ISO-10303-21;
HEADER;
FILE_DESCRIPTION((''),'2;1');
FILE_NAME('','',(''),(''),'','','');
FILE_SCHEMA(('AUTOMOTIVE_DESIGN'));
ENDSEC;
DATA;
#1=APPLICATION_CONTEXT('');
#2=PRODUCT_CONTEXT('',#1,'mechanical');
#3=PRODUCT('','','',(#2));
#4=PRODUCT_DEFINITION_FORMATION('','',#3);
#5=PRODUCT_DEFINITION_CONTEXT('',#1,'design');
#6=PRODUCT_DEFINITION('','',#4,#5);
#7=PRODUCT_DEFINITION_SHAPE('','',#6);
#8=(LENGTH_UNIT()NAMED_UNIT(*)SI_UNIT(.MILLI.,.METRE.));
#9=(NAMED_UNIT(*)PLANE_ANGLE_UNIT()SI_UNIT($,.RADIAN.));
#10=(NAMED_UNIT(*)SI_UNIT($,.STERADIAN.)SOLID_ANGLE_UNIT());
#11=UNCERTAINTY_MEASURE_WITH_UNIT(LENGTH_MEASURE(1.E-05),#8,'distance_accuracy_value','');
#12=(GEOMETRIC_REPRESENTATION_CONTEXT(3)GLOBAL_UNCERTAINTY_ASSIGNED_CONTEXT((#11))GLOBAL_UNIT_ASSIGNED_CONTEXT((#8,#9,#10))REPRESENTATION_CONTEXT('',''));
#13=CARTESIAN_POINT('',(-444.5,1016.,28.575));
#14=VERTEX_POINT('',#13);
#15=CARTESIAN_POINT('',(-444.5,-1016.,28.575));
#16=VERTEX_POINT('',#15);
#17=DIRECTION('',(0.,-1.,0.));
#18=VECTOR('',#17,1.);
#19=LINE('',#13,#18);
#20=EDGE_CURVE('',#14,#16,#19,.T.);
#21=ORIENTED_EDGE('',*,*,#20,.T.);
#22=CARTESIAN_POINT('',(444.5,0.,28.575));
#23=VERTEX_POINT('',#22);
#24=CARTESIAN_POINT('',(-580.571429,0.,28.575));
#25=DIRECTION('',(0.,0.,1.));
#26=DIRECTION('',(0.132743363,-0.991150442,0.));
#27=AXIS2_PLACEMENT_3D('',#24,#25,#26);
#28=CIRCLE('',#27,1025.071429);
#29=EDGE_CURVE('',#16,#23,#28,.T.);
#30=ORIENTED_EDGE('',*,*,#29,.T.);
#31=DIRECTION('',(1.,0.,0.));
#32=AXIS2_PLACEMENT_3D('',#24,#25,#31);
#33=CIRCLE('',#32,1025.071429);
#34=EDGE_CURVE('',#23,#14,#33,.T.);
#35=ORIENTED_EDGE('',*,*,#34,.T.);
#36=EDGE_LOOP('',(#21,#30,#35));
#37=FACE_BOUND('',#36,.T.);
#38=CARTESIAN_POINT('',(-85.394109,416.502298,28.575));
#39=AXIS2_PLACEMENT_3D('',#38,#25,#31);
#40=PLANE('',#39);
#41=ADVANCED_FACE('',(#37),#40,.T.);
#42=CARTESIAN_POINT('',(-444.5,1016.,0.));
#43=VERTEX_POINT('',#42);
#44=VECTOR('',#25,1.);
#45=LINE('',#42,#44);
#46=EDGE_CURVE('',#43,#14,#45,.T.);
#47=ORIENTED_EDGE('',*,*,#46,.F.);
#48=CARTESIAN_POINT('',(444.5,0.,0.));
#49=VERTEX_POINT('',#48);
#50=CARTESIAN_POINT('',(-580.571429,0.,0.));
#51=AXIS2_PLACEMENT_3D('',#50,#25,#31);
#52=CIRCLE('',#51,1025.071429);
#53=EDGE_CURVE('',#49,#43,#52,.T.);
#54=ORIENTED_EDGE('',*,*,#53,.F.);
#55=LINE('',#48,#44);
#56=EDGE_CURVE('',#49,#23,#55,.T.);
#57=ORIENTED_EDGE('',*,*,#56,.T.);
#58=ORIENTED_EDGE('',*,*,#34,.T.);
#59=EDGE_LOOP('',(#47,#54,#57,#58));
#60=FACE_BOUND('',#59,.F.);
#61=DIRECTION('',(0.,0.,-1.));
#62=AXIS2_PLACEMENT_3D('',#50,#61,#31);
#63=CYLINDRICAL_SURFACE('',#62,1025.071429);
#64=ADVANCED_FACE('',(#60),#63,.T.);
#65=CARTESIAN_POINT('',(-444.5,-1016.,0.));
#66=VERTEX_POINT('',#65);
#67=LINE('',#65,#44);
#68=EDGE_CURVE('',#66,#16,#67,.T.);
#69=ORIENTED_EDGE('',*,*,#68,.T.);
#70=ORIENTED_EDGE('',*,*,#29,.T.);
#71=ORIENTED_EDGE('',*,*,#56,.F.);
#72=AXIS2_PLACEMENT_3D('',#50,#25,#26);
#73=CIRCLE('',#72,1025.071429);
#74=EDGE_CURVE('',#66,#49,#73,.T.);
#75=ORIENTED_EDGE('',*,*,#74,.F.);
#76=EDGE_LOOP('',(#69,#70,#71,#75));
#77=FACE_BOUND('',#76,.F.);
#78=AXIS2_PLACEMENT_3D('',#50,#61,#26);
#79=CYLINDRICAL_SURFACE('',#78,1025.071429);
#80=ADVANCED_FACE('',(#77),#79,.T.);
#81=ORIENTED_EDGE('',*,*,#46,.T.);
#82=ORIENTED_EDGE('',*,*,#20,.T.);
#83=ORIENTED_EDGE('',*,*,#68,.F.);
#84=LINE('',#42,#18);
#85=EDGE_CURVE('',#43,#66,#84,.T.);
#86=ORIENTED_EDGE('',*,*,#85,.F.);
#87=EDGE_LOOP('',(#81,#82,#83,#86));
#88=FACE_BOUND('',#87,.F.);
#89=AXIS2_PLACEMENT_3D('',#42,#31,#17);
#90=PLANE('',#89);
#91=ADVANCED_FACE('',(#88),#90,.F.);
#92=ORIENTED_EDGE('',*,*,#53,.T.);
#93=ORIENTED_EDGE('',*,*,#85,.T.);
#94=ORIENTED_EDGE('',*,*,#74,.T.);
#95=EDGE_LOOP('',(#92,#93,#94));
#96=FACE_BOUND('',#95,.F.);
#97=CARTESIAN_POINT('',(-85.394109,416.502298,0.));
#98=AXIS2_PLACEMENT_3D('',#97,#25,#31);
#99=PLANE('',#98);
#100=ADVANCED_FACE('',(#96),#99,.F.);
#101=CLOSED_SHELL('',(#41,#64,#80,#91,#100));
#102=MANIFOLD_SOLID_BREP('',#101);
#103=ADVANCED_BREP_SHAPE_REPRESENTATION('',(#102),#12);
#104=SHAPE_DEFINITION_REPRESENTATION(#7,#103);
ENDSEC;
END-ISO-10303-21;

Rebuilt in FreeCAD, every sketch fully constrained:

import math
import FreeCAD as App
import Part
import Sketcher
from FreeCAD import Vector
Q = App.Units.Quantity

doc = App.newDocument("Part")
body = doc.addObject("PartDesign::Body", "Body")

# Sketch on XY plane
sketch1 = body.newObject("Sketcher::SketchObject", "Sketch")
sketch1.AttachmentSupport = (doc.getObject("XY_Plane"), [""])
sketch1.MapMode = "FlatFace"
sketch1.addGeometry([
    Part.ArcOfCircle(Part.Circle(Vector(-580.571429, 0, 0), Vector(0, 0, 1), 1025.071429), math.radians(0), math.radians(82.37185)),
    Part.LineSegment(Vector(-444.5, 1016, 0), Vector(-444.5, -1016, 0)),
    Part.ArcOfCircle(Part.Circle(Vector(-580.571429, 0, 0), Vector(0, 0, 1), 1025.071429), math.radians(-82.37185), math.radians(0)),
], False)
sketch1.addConstraint([
    Sketcher.Constraint("Coincident", 0, 2, 1, 1),
    Sketcher.Constraint("Coincident", 1, 2, 2, 1),
    Sketcher.Constraint("Coincident", 2, 2, 0, 1),
    Sketcher.Constraint("Vertical", 1),
    Sketcher.Constraint("Coincident", 2, 3, 0, 3),
    Sketcher.Constraint("PointOnObject", 0, 3, -1),
    Sketcher.Constraint("PointOnObject", 2, 2, -1),
    Sketcher.Constraint("DistanceY", 1, 2, 1, 1, Q("80 in")),
    Sketcher.Constraint("DistanceX", 1, 2, 2, 2, Q("35 in")),
    Sketcher.Constraint("DistanceX", 1, 2, -1, 1, Q("17.5 in")),
])
pad1 = body.newObject("PartDesign::Pad", "Pad")
pad1.Profile = sketch1
pad1.Length = Q("1.125 in")

doc.recompute()
